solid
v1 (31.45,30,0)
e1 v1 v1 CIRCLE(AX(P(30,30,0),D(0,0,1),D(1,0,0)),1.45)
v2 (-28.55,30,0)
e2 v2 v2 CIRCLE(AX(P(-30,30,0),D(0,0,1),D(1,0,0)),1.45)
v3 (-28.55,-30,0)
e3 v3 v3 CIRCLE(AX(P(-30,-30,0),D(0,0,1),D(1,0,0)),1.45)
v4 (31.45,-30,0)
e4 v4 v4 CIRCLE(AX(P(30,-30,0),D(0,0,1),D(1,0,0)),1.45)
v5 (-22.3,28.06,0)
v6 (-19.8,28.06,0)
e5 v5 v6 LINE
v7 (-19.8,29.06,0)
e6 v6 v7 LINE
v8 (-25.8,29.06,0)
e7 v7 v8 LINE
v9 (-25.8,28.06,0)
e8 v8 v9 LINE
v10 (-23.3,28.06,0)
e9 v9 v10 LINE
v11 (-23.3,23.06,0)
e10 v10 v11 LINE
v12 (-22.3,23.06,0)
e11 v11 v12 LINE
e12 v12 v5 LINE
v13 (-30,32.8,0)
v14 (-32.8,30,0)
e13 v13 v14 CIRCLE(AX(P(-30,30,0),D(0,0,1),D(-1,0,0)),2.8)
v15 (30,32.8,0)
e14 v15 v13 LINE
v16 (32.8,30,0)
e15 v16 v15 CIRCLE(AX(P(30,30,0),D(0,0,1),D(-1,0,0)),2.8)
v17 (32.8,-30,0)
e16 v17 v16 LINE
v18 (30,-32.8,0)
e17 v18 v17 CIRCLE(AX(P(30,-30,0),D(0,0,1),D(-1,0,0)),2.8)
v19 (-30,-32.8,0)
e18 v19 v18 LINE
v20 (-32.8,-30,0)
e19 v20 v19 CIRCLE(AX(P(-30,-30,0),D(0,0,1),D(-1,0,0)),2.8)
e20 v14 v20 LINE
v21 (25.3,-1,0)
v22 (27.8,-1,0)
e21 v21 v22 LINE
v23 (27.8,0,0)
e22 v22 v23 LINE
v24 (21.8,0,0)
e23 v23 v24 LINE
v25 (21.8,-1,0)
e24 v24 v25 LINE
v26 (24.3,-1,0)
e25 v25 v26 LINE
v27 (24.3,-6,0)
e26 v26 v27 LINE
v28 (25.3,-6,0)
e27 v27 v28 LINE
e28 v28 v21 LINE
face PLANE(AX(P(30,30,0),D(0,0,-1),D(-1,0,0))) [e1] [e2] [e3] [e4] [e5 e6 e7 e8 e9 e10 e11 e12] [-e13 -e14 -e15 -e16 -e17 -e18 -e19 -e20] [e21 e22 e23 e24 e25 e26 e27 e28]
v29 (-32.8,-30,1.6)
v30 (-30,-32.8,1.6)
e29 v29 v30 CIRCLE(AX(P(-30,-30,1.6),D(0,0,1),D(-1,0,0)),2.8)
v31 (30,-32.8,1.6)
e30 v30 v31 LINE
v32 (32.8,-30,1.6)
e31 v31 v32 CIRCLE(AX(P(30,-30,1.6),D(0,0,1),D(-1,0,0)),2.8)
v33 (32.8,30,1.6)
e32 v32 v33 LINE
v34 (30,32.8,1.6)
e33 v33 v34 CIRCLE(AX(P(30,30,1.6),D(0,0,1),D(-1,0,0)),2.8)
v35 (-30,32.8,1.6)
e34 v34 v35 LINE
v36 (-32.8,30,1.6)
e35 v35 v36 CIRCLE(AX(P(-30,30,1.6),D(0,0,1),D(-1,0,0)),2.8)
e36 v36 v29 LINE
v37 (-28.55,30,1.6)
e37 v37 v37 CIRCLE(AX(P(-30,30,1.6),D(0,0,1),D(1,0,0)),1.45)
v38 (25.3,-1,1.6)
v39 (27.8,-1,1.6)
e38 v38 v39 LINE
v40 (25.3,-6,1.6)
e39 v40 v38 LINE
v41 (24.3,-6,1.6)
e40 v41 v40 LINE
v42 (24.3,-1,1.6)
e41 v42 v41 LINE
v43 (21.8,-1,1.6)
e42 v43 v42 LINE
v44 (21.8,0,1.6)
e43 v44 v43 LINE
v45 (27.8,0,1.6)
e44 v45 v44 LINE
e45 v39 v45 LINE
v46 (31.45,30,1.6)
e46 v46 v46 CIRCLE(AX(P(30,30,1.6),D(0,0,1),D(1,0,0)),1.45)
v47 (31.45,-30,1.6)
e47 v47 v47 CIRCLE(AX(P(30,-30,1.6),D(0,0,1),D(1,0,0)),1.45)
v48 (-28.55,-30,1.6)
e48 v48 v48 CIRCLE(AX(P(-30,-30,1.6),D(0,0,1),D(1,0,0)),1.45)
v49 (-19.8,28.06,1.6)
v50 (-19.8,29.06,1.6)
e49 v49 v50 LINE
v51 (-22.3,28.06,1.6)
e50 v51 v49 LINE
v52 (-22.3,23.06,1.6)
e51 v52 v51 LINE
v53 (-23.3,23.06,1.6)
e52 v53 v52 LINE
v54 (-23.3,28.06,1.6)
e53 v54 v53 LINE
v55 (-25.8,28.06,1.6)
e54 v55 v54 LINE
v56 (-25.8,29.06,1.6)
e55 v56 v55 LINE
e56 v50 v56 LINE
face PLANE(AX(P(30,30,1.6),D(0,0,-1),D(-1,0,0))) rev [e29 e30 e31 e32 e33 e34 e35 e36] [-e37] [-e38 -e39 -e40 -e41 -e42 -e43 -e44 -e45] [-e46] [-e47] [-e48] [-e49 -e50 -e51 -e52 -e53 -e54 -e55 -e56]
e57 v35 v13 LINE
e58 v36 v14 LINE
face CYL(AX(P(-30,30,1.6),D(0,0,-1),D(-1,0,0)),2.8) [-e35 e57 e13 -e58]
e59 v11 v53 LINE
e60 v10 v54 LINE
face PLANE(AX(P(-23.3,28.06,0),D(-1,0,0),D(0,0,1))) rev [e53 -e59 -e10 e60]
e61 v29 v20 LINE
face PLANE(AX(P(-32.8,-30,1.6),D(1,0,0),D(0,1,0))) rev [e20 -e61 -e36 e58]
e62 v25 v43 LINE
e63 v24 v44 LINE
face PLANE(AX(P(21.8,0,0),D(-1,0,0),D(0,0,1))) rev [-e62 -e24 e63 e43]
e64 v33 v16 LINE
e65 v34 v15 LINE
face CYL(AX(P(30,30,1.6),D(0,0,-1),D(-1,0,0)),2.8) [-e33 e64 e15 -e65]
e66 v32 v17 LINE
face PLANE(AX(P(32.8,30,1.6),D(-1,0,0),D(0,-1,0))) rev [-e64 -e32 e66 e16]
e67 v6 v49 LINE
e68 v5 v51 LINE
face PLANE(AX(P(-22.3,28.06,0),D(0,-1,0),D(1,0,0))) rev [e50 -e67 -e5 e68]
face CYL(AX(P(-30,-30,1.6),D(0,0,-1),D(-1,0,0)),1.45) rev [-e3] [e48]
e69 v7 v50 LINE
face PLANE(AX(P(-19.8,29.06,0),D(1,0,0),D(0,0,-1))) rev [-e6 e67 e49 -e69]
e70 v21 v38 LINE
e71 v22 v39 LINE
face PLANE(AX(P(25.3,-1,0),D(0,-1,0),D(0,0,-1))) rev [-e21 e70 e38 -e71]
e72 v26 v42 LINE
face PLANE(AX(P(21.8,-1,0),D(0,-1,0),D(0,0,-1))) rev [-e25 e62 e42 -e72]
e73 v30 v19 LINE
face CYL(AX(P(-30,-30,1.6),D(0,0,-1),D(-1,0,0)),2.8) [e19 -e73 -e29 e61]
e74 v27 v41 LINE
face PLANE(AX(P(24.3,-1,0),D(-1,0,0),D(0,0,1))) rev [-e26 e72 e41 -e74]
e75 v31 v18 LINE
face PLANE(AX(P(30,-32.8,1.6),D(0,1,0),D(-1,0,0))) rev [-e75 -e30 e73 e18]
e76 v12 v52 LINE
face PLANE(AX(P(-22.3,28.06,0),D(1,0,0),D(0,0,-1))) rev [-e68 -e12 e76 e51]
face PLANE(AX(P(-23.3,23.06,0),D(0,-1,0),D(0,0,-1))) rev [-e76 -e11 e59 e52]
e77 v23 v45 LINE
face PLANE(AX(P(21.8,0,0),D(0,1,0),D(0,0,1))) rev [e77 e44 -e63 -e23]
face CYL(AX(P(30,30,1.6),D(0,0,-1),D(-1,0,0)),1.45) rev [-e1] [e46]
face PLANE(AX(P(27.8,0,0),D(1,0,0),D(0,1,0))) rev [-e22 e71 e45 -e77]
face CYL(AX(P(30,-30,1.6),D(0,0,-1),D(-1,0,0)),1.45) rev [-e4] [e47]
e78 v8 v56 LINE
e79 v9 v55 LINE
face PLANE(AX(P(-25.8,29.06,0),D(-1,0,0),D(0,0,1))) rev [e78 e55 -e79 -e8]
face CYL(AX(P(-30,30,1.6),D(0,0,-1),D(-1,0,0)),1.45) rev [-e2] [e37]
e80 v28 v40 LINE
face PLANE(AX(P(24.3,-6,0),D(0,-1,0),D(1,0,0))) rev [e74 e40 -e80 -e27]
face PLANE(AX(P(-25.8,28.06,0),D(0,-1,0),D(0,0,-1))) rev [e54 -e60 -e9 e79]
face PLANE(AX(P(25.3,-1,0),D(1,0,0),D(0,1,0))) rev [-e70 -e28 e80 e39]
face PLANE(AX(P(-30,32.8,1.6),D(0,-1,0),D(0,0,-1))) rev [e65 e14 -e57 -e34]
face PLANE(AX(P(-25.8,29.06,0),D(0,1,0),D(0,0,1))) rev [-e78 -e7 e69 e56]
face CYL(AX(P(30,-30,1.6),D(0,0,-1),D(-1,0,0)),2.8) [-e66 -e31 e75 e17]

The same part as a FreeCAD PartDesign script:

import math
import FreeCAD as App
import Part
import Sketcher
from FreeCAD import Vector


def add_polygon(sketch, points):
    """Adds a closed chain of lines whose ends are joined by coincident constraints."""
    first, n = sketch.GeometryCount, len(points)
    for a, b in zip(points, points[1:] + points[:1]):
        sketch.addGeometry(Part.LineSegment(App.Vector(*a, 0), App.Vector(*b, 0)), False)
    for i in range(n):
        sketch.addConstraint(Sketcher.Constraint("Coincident", first + i, 2, first + (i + 1) % n, 1))

doc = App.newDocument("Part")
body = doc.addObject("PartDesign::Body", "Body")

sketch1 = body.newObject("Sketcher::SketchObject", "Sketch")
sketch1.AttachmentSupport = (doc.getObject("XY_Plane"), [""])
sketch1.MapMode = "FlatFace"
sketch1.addGeometry(Part.LineSegment(Vector(30, 32.8, 0), Vector(-30, 32.8, 0)), False)
sketch1.addGeometry(Part.ArcOfCircle(Part.Circle(Vector(-30, 30, 0), Vector(0, 0, 1), 2.8), math.radians(90), math.radians(180)), False)
sketch1.addGeometry(Part.LineSegment(Vector(-32.8, 30, 0), Vector(-32.8, -30, 0)), False)
sketch1.addGeometry(Part.ArcOfCircle(Part.Circle(Vector(-30, -30, 0), Vector(0, 0, 1), 2.8), math.radians(-180), math.radians(-90)), False)
sketch1.addGeometry(Part.LineSegment(Vector(-30, -32.8, 0), Vector(30, -32.8, 0)), False)
sketch1.addGeometry(Part.ArcOfCircle(Part.Circle(Vector(30, -30, 0), Vector(0, 0, 1), 2.8), math.radians(-90), math.radians(0)), False)
sketch1.addGeometry(Part.LineSegment(Vector(32.8, -30, 0), Vector(32.8, 30, 0)), False)
sketch1.addGeometry(Part.ArcOfCircle(Part.Circle(Vector(30, 30, 0), Vector(0, 0, 1), 2.8), math.radians(0), math.radians(90)), False)
sketch1.addGeometry(Part.Circle(Vector(30, -30, 0), Vector(0, 0, 1), 1.4), False)
sketch1.addGeometry(Part.Circle(Vector(-30, -30, 0), Vector(0, 0, 1), 1.4), False)
sketch1.addGeometry(Part.Circle(Vector(30, 30, 0), Vector(0, 0, 1), 1.4), False)
sketch1.addGeometry(Part.Circle(Vector(-30, 30, 0), Vector(0, 0, 1), 1.4), False)
sketch1.addConstraint(Sketcher.Constraint("Tangent", 0, 2, 1, 1))
sketch1.addConstraint(Sketcher.Constraint("Tangent", 1, 2, 2, 1))
sketch1.addConstraint(Sketcher.Constraint("Tangent", 2, 2, 3, 1))
sketch1.addConstraint(Sketcher.Constraint("Tangent", 3, 2, 4, 1))
sketch1.addConstraint(Sketcher.Constraint("Tangent", 4, 2, 5, 1))
sketch1.addConstraint(Sketcher.Constraint("Tangent", 5, 2, 6, 1))
sketch1.addConstraint(Sketcher.Constraint("Tangent", 6, 2, 7, 1))
sketch1.addConstraint(Sketcher.Constraint("Tangent", 7, 2, 0, 1))
sketch1.addConstraint(Sketcher.Constraint("Horizontal", 0))
sketch1.addConstraint(Sketcher.Constraint("Vertical", 2))
sketch1.addConstraint(Sketcher.Constraint("Horizontal", 4))
sketch1.addConstraint(Sketcher.Constraint("Vertical", 6))
sketch1.addConstraint(Sketcher.Constraint("Coincident", 8, 3, 5, 3))
sketch1.addConstraint(Sketcher.Constraint("Coincident", 9, 3, 3, 3))
sketch1.addConstraint(Sketcher.Constraint("Coincident", 10, 3, 7, 3))
sketch1.addConstraint(Sketcher.Constraint("Coincident", 11, 3, 1, 3))
sketch1.addConstraint(Sketcher.Constraint("Equal", 1, 3))
sketch1.addConstraint(Sketcher.Constraint("Equal", 3, 5))
sketch1.addConstraint(Sketcher.Constraint("Equal", 5, 7))
sketch1.addConstraint(Sketcher.Constraint("Equal", 8, 9))
sketch1.addConstraint(Sketcher.Constraint("Equal", 9, 10))
sketch1.addConstraint(Sketcher.Constraint("Equal", 10, 11))
sketch1.addConstraint(Sketcher.Constraint("Symmetric", 1, 3, 5, 3, -1, 1))
sketch1.addConstraint(Sketcher.Constraint("Equal", 4, 2))
sketch1.addConstraint(Sketcher.Constraint("Diameter", 8, 2.9))
sketch1.addConstraint(Sketcher.Constraint("Radius", 1, 2.8))
sketch1.addConstraint(Sketcher.Constraint("DistanceX", 0, 2, 0, 1, 60.0))
pad1 = body.newObject("PartDesign::Pad", "Pad")
pad1.Profile = sketch1
pad1.Length = 1.6

sketch2 = body.newObject("Sketcher::SketchObject", "Sketch001")
sketch2.AttachmentSupport = (doc.getObject("XY_Plane"), [""])
sketch2.MapMode = "FlatFace"
sketch2.AttachmentOffset = App.Placement(Vector(0, 0, 1.6), App.Rotation())
add_polygon(sketch2, [(-19.8, 29.1), (-25.8, 29.1), (-25.8, 28.1), (-23.3, 28.1), (-23.3, 23.1), (-22.3, 23.1), (-22.3, 28.1), (-19.8, 28.1)])
sketch2.addConstraint(Sketcher.Constraint("Horizontal", 0))
sketch2.addConstraint(Sketcher.Constraint("Vertical", 1))
sketch2.addConstraint(Sketcher.Constraint("Horizontal", 2))
sketch2.addConstraint(Sketcher.Constraint("Vertical", 3))
sketch2.addConstraint(Sketcher.Constraint("Horizontal", 4))
sketch2.addConstraint(Sketcher.Constraint("Vertical", 5))
sketch2.addConstraint(Sketcher.Constraint("Horizontal", 6))
sketch2.addConstraint(Sketcher.Constraint("Vertical", 7))
sketch2.addConstraint(Sketcher.Constraint("Horizontal", 2, 2, 5, 2))
sketch2.addConstraint(Sketcher.Constraint("Equal", 2, 6))
sketch2.addConstraint(Sketcher.Constraint("Equal", 4, 1))
sketch2.addConstraint(Sketcher.Constraint("DistanceX", 0, 2, 0, 1, 6.0))
sketch2.addConstraint(Sketcher.Constraint("DistanceX", 4, 1, 4, 2, 1.0))
sketch2.addConstraint(Sketcher.Constraint("DistanceY", 3, 2, 3, 1, 5.0))
sketch2.addConstraint(Sketcher.Constraint("DistanceX", 0, 2, -1, 1, 25.8))
sketch2.addConstraint(Sketcher.Constraint("DistanceY", -1, 1, 0, 2, 29.06))
pocket1 = body.newObject("PartDesign::Pocket", "Pocket")
pocket1.Profile = sketch2
pocket1.Length = 1.6

sketch3 = body.newObject("Sketcher::SketchObject", "Sketch002")
sketch3.AttachmentSupport = (doc.getObject("XY_Plane"), [""])
sketch3.MapMode = "FlatFace"
sketch3.AttachmentOffset = App.Placement(Vector(0, 0, 1.6), App.Rotation())
add_polygon(sketch3, [(25.3, -1), (27.8, -1), (27.8, 0), (21.8, 0), (21.8, -1), (24.3, -1), (24.3, -6), (25.3, -6)])
sketch3.addConstraint(Sketcher.Constraint("Horizontal", 0))
sketch3.addConstraint(Sketcher.Constraint("Vertical", 1))
sketch3.addConstraint(Sketcher.Constraint("Horizontal", 2))
sketch3.addConstraint(Sketcher.Constraint("Vertical", 3))
sketch3.addConstraint(Sketcher.Constraint("Horizontal", 4))
sketch3.addConstraint(Sketcher.Constraint("Vertical", 5))
sketch3.addConstraint(Sketcher.Constraint("Horizontal", 6))
sketch3.addConstraint(Sketcher.Constraint("Vertical", 7))
sketch3.addConstraint(Sketcher.Constraint("PointOnObject", 1, 2, -1))
sketch3.addConstraint(Sketcher.Constraint("Horizontal", 0, 2, 3, 2))
sketch3.addConstraint(Sketcher.Constraint("Equal", 0, 4))
sketch3.addConstraint(Sketcher.Constraint("Equal", 6, 1))
sketch3.addConstraint(Sketcher.Constraint("DistanceX", 2, 2, 2, 1, 6.0))
sketch3.addConstraint(Sketcher.Constraint("DistanceX", 6, 1, 6, 2, 1.0))
sketch3.addConstraint(Sketcher.Constraint("DistanceY", 5, 2, 5, 1, 5.0))
sketch3.addConstraint(Sketcher.Constraint("DistanceX", -1, 1, 0, 2, 27.8))
pocket2 = body.newObject("PartDesign::Pocket", "Pocket001")
pocket2.Profile = sketch3
pocket2.Length = 1.6

doc.recompute()
